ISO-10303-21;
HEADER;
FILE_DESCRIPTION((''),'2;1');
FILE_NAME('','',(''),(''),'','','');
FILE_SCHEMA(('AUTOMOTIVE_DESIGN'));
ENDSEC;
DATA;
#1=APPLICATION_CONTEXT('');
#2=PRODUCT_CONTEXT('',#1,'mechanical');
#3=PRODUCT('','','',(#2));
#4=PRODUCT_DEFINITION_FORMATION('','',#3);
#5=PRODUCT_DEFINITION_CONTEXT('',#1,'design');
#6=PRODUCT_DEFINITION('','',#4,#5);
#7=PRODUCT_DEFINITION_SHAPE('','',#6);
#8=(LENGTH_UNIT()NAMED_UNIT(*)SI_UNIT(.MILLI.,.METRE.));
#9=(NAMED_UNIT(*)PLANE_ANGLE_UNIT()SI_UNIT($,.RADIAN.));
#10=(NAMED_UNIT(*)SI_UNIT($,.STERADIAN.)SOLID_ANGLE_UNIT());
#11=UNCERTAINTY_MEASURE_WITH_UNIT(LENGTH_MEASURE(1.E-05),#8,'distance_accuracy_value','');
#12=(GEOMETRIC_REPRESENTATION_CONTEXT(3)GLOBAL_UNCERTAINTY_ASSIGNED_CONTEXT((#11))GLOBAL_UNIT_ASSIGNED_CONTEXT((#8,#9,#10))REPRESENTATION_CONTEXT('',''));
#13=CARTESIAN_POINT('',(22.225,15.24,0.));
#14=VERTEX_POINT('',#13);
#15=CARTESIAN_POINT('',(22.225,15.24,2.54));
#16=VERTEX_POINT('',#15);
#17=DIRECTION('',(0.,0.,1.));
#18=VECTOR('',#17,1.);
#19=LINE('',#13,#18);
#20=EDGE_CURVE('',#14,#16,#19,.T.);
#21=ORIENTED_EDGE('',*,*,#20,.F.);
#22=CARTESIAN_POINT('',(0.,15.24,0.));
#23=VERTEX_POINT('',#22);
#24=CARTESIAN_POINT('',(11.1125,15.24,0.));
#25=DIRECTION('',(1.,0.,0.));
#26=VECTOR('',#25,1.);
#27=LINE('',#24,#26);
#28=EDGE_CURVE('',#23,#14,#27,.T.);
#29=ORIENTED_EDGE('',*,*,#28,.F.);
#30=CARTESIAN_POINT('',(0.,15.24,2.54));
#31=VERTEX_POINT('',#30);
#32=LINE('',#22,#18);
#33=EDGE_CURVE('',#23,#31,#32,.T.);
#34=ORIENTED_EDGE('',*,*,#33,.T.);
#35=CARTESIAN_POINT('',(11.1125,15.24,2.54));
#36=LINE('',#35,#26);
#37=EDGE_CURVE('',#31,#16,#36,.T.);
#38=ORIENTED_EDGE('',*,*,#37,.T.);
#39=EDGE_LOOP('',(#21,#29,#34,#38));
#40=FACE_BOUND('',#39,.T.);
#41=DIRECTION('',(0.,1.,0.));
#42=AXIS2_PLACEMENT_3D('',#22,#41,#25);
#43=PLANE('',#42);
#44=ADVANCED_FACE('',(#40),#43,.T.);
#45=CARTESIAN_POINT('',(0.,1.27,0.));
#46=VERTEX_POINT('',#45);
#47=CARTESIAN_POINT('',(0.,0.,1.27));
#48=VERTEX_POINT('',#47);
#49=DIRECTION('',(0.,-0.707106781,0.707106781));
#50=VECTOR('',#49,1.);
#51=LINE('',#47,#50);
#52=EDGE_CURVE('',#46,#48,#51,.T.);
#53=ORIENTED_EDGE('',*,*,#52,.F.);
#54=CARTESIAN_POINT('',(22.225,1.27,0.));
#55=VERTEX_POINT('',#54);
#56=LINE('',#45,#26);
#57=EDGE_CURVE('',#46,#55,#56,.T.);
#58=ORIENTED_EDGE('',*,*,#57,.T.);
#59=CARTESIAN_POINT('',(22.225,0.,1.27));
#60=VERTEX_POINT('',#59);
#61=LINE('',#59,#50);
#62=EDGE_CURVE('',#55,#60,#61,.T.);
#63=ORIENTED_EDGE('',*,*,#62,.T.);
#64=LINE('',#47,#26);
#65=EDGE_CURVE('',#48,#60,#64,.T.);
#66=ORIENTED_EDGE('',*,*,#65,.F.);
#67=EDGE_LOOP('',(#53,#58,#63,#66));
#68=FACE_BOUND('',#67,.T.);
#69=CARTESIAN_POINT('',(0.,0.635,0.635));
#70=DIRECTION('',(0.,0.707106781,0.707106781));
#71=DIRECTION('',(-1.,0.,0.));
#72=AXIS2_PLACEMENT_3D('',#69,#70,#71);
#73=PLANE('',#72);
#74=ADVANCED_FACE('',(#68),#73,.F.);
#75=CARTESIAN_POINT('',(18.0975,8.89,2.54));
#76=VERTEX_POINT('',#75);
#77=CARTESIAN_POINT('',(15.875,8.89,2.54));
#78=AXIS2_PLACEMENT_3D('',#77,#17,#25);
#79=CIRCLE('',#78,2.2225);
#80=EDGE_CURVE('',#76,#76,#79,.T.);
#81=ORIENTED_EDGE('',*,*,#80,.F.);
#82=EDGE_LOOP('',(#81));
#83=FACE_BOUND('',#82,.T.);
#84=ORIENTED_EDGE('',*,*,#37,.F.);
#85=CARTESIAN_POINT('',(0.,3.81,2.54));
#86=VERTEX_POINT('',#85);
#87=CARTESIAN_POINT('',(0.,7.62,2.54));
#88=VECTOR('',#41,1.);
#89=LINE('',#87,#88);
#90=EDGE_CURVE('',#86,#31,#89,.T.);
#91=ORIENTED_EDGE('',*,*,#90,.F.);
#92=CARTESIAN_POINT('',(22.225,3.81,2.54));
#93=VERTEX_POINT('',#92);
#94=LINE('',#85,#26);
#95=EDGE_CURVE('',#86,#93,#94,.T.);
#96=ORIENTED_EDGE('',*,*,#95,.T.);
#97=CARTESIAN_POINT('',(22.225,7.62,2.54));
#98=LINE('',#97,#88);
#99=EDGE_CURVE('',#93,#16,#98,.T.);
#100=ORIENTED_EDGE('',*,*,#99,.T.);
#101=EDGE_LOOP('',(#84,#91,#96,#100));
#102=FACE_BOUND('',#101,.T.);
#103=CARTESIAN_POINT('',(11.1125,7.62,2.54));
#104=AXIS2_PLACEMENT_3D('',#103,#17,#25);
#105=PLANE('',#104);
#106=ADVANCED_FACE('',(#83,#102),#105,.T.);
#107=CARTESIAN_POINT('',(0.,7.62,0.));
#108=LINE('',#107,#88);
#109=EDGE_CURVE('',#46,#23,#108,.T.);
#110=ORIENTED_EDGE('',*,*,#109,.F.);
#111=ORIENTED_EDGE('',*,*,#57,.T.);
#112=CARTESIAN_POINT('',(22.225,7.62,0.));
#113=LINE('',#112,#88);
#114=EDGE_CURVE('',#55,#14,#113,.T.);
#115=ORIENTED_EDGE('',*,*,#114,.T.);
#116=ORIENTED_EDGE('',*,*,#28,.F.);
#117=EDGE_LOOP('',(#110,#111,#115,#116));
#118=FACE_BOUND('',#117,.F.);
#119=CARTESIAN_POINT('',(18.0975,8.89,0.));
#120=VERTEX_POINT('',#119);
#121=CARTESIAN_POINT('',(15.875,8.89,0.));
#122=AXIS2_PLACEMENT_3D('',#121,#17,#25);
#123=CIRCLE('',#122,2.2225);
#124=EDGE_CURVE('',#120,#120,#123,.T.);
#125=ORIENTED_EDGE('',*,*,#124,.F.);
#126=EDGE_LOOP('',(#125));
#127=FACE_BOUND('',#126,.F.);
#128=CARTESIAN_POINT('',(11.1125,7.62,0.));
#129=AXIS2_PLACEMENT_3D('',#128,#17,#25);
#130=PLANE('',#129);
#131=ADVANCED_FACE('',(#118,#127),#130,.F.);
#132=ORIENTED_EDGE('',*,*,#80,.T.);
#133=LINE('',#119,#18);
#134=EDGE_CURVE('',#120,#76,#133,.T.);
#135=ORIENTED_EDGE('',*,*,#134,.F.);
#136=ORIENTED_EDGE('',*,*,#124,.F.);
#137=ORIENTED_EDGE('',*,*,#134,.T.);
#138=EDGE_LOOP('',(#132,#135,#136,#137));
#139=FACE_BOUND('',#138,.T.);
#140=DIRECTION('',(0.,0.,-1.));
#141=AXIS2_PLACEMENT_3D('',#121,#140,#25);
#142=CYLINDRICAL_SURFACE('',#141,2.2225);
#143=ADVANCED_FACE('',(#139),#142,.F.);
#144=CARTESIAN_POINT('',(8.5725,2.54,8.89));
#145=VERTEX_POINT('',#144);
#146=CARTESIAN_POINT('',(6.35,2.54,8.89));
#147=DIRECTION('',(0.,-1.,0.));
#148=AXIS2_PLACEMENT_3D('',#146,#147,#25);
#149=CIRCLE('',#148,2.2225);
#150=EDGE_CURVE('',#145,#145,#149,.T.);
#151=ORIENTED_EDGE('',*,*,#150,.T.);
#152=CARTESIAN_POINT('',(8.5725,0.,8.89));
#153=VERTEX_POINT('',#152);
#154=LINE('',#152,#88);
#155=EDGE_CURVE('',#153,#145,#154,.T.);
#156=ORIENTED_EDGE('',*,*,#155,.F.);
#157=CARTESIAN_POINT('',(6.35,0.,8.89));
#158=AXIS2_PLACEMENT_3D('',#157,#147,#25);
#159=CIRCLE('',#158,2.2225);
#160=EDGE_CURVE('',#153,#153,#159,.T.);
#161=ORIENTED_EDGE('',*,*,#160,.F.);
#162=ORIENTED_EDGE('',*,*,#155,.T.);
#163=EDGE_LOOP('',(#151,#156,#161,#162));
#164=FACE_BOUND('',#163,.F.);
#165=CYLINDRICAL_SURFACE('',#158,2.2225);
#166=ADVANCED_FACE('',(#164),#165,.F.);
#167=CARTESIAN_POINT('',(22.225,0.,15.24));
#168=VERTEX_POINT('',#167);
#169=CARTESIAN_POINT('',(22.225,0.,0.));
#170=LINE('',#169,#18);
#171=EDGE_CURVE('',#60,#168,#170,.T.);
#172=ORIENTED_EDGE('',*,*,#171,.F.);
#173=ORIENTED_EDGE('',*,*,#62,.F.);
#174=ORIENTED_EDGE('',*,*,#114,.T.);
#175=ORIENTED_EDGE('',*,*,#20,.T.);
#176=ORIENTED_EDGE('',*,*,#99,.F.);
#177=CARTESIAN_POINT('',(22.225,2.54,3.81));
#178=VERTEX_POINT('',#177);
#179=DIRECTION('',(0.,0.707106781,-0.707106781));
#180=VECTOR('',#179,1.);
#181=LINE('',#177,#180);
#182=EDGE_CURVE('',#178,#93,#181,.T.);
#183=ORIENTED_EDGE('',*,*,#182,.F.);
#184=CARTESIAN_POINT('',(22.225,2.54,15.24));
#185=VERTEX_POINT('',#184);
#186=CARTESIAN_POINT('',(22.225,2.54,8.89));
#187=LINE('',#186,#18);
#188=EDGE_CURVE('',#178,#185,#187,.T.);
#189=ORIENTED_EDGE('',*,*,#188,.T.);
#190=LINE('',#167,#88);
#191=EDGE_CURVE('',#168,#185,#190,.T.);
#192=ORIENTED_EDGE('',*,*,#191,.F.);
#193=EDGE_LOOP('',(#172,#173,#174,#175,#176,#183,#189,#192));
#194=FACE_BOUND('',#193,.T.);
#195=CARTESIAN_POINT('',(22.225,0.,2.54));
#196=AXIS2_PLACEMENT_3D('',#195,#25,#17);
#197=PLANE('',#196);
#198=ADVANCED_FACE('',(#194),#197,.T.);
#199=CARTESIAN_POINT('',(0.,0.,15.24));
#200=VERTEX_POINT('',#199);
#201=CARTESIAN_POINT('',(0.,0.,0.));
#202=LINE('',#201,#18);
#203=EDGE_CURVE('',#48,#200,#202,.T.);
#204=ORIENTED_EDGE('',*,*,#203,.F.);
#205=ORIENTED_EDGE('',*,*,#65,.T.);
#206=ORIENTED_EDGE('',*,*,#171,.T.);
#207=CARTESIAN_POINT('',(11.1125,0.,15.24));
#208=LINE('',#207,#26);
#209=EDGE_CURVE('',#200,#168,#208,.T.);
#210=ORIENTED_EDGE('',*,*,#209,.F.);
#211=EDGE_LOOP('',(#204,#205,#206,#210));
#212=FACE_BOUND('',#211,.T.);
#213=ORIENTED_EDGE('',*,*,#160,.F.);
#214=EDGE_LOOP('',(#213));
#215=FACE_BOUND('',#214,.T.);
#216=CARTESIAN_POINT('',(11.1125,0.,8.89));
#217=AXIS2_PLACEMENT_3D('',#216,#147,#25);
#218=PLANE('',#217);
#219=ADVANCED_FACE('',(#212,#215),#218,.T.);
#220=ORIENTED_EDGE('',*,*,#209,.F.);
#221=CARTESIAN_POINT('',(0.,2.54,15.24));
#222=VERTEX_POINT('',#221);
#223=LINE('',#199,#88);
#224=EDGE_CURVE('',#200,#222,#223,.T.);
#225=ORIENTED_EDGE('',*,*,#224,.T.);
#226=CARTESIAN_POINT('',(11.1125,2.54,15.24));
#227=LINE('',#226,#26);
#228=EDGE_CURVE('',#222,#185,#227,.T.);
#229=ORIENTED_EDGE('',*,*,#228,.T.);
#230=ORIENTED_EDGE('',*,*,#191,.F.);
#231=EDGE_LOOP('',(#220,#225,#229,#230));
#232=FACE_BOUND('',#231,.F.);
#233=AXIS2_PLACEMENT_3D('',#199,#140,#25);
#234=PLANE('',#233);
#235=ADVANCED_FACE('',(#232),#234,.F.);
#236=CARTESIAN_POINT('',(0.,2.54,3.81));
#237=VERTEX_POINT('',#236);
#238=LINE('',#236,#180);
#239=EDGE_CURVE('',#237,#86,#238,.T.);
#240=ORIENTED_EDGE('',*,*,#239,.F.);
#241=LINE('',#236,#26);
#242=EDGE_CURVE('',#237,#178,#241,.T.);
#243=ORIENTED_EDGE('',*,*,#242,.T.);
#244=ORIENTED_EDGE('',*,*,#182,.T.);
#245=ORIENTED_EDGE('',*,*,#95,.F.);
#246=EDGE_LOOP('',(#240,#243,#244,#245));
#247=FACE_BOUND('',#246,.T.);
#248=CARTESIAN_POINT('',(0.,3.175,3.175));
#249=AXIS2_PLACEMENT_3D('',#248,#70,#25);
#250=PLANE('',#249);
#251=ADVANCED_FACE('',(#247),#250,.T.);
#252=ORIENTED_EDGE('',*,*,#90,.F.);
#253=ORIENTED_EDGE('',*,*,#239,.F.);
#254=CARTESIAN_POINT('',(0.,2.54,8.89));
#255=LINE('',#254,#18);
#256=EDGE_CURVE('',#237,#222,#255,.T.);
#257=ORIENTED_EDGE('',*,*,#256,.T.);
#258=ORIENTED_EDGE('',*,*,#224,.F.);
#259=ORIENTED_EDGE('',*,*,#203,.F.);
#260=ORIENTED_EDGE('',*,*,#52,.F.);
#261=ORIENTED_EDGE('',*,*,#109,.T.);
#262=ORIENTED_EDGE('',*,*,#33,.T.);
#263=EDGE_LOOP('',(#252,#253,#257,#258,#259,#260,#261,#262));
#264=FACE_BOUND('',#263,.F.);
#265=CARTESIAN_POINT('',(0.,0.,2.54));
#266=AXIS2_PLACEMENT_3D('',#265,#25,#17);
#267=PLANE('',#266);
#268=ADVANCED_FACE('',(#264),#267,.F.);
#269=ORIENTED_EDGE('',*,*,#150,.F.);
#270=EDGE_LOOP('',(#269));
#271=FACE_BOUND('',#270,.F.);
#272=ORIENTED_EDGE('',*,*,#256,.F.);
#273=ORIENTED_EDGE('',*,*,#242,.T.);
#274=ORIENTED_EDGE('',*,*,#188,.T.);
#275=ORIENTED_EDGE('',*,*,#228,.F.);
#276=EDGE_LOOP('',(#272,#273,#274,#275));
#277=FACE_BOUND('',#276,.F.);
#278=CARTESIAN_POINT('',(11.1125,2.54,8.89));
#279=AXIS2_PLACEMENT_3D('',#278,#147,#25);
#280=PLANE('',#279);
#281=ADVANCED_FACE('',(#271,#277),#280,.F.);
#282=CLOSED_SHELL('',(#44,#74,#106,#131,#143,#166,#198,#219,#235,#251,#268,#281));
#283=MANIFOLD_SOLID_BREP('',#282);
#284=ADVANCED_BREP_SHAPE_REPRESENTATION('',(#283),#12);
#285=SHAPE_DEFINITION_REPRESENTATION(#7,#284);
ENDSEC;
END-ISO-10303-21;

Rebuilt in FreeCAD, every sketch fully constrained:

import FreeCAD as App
import Part
import Sketcher
Q = App.Units.Quantity


def edges_at(feature, points):
    """Names of the edges that pass closest to the given points."""
    edges = feature.Shape.Edges
    near = lambda p: min(range(len(edges)), key=lambda i: edges[i].distToShape(Part.Vertex(*p))[0])
    return sorted({f"Edge{near(p) + 1}" for p in points})

doc = App.newDocument("Part")
body = doc.addObject("PartDesign::Body", "Body")

sketch1 = doc.addObject("Sketcher::SketchObject", "Sketch")
body.addObject(sketch1)
sketch1.AttachmentSupport = (doc.XY_Plane, [""])
sketch1.MapMode = "FlatFace"
sketch1.addGeometry([
    Part.LineSegment(App.Vector(0, 15.24, 0), App.Vector(0, 0, 0)),
    Part.LineSegment(App.Vector(0, 0, 0), App.Vector(22.225, 0, 0)),
    Part.LineSegment(App.Vector(22.225, 0, 0), App.Vector(22.225, 15.24, 0)),
    Part.LineSegment(App.Vector(22.225, 15.24, 0), App.Vector(0, 15.24, 0)),
    Part.Circle(App.Vector(15.875, 8.89, 0), App.Vector(0, 0, 1), 2.2225),
], False)
sketch1.addConstraint([
    Sketcher.Constraint("Coincident", 0, 2, 1, 1),
    Sketcher.Constraint("Coincident", 1, 2, 2, 1),
    Sketcher.Constraint("Coincident", 2, 2, 3, 1),
    Sketcher.Constraint("Coincident", 3, 2, 0, 1),
    Sketcher.Constraint("Vertical", 0),
    Sketcher.Constraint("Horizontal", 1),
    Sketcher.Constraint("Vertical", 2),
    Sketcher.Constraint("Horizontal", 3),
    Sketcher.Constraint("Coincident", 0, 2, -1, 1),
    Sketcher.Constraint("Diameter", 4, Q("0.175 in")),
    Sketcher.Constraint("DistanceY", 0, 2, 0, 1, Q("0.6 in")),
    Sketcher.Constraint("DistanceX", 1, 1, 1, 2, Q("0.875 in")),
    Sketcher.Constraint("DistanceY", -1, 1, 4, 3, Q("0.35 in")),
    Sketcher.Constraint("DistanceX", 4, 3, 1, 2, Q("0.25 in")),
])
pad1 = doc.addObject("PartDesign::Pad", "Pad")
body.addObject(pad1)
pad1.Profile = sketch1
pad1.Length = Q("0.1 in")

sketch2 = doc.addObject("Sketcher::SketchObject", "Sketch001")
body.addObject(sketch2)
sketch2.AttachmentSupport = (doc.XZ_Plane, [""])
sketch2.MapMode = "FlatFace"
sketch2.addGeometry([
    Part.LineSegment(App.Vector(0, 15.24, 0), App.Vector(0, 2.54, 0)),
    Part.LineSegment(App.Vector(0, 2.54, 0), App.Vector(22.225, 2.54, 0)),
    Part.LineSegment(App.Vector(22.225, 2.54, 0), App.Vector(22.225, 15.24, 0)),
    Part.LineSegment(App.Vector(22.225, 15.24, 0), App.Vector(0, 15.24, 0)),
    Part.Circle(App.Vector(6.35, 8.89, 0), App.Vector(0, 0, 1), 2.2225),
], False)
sketch2.addConstraint([
    Sketcher.Constraint("Coincident", 0, 2, 1, 1),
    Sketcher.Constraint("Coincident", 1, 2, 2, 1),
    Sketcher.Constraint("Coincident", 2, 2, 3, 1),
    Sketcher.Constraint("Coincident", 3, 2, 0, 1),
    Sketcher.Constraint("Vertical", 0),
    Sketcher.Constraint("Horizontal", 1),
    Sketcher.Constraint("Vertical", 2),
    Sketcher.Constraint("Horizontal", 3),
    Sketcher.Constraint("PointOnObject", 0, 2, -2),
    Sketcher.Constraint("Diameter", 4, Q("0.175 in")),
    Sketcher.Constraint("DistanceY", 0, 2, 0, 1, Q("0.5 in")),
    Sketcher.Constraint("DistanceY", -1, 1, 0, 2, Q("0.1 in")),
    Sketcher.Constraint("DistanceX", 1, 1, 1, 2, Q("0.875 in")),
    Sketcher.Constraint("DistanceX", -1, 1, 4, 3, Q("0.25 in")),
    Sketcher.Constraint("DistanceY", -1, 1, 4, 3, Q("0.35 in")),
])
pad2 = doc.addObject("PartDesign::Pad", "Pad001")
body.addObject(pad2)
pad2.Profile = sketch2
pad2.Length = Q("0.1 in")
pad2.Reversed = True
doc.recompute()

chamfer = doc.addObject("PartDesign::Chamfer", "Chamfer")
body.addObject(chamfer)
chamfer.Base = (pad2, edges_at(pad2, [(11.113, 0, 0)]))
chamfer.Size = Q("0.05 in")
doc.recompute()

chamfer2 = doc.addObject("PartDesign::Chamfer", "Chamfer001")
body.addObject(chamfer2)
chamfer2.Base = (chamfer, edges_at(chamfer, [(11.113, 2.54, 2.54)]))
chamfer2.Size = Q("0.05 in")

doc.recompute()
